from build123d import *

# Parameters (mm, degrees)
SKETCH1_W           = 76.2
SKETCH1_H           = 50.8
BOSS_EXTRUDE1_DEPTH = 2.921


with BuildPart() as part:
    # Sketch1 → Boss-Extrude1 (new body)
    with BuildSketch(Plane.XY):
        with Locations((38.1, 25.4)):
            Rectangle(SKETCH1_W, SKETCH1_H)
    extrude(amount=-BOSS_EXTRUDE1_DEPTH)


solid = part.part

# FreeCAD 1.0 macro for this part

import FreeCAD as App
import Part
import Sketcher
from FreeCAD import Vector
Q = App.Units.Quantity


def add_polygon(sketch, points):
    """Adds a closed chain of lines whose ends are joined by coincident constraints."""
    first, n = sketch.GeometryCount, len(points)
    for a, b in zip(points, points[1:] + points[:1]):
        sketch.addGeometry(Part.LineSegment(App.Vector(*a, 0), App.Vector(*b, 0)), False)
    for i in range(n):
        sketch.addConstraint(Sketcher.Constraint("Coincident", first + i, 2, first + (i + 1) % n, 1))

doc = App.newDocument("Part")
params = doc.addObject("Spreadsheet::Sheet", "Params")
for row, (alias, value) in enumerate([
    ("sketch1_width", "3 in"),
    ("sketch1_height", "2 in"),
    ("pad1_length", "0.115 in"),
], start=1):
    params.set(f"A{row}", alias)
    params.set(f"B{row}", "=" + value)
    params.setAlias(f"B{row}", alias)

body = doc.addObject("PartDesign::Body", "Body")

# Sketch on XY plane
sketch1 = body.newObject("Sketcher::SketchObject", "Sketch")
sketch1.AttachmentSupport = (doc.getObject("XY_Plane"), [""])
sketch1.MapMode = "FlatFace"
add_polygon(sketch1, [(0, 51), (0, 0), (76, 0), (76, 51)])  # lines 0-3
sketch1.addConstraint(Sketcher.Constraint("Vertical", 0))
sketch1.addConstraint(Sketcher.Constraint("Horizontal", 1))
sketch1.addConstraint(Sketcher.Constraint("Vertical", 2))
sketch1.addConstraint(Sketcher.Constraint("Horizontal", 3))
sketch1.addConstraint(Sketcher.Constraint("Coincident", 0, 2, -1, 1))
sketch1.addConstraint(Sketcher.Constraint("DistanceX", 1, 1, 1, 2, Q("3 in")))
sketch1.addConstraint(Sketcher.Constraint("DistanceY", 0, 2, 0, 1, Q("2 in")))
sketch1.setExpression("Constraints[9]", "Params.sketch1_width")
sketch1.setExpression("Constraints[10]", "Params.sketch1_height")
pad1 = body.newObject("PartDesign::Pad", "Pad")
pad1.Profile = sketch1
pad1.setExpression("Length", "Params.pad1_length")
pad1.Reversed = True

doc.recompute()
